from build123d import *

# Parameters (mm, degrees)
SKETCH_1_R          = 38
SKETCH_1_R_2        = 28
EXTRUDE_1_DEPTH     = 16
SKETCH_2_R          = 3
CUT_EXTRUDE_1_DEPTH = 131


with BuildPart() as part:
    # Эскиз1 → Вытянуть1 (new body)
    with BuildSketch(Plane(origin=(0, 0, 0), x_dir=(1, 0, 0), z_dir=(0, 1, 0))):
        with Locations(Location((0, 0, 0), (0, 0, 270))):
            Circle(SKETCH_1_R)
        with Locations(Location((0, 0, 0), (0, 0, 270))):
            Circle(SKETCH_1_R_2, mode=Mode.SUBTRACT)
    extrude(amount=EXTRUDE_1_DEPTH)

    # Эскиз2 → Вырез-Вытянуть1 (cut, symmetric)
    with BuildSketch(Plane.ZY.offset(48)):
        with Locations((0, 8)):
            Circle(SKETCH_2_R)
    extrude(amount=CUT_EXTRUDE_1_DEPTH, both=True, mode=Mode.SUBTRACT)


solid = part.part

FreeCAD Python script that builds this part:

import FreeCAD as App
import Part
import Sketcher
Q = App.Units.Quantity

doc = App.newDocument("Part")
body = doc.addObject("PartDesign::Body", "Body")

# Sketch on XZ plane
sketch1 = body.newObject("Sketcher::SketchObject", "Sketch")
sketch1.AttachmentSupport = (doc.getObject("XZ_Plane"), [""])
sketch1.MapMode = "FlatFace"
sketch1.addGeometry(Part.Circle(App.Vector(0, 0, 0), App.Vector(0, 0, 1), 38), False)
sketch1.addGeometry(Part.Circle(App.Vector(0, 0, 0), App.Vector(0, 0, 1), 28), False)
sketch1.addConstraint(Sketcher.Constraint("Coincident", 0, 3, -1, 1))
sketch1.addConstraint(Sketcher.Constraint("Coincident", 1, 3, -1, 1))
sketch1.addConstraint(Sketcher.Constraint("Diameter", 0, Q("76 mm")))
sketch1.addConstraint(Sketcher.Constraint("Diameter", 1, Q("56 mm")))
pad1 = body.newObject("PartDesign::Pad", "Pad")
pad1.Profile = sketch1
pad1.Length = 16
pad1.Reversed = True

# Sketch on YZ plane
sketch2 = body.newObject("Sketcher::SketchObject", "Sketch001")
sketch2.AttachmentSupport = (doc.getObject("YZ_Plane"), [""])
sketch2.MapMode = "FlatFace"
sketch2.AttachmentOffset = App.Placement(App.Vector(0, 0, -48), App.Rotation())
sketch2.addGeometry(Part.Circle(App.Vector(8, 0, 0), App.Vector(0, 0, 1), 3), False)
sketch2.addConstraint(Sketcher.Constraint("PointOnObject", 0, 3, -1))
sketch2.addConstraint(Sketcher.Constraint("Diameter", 0, Q("6 mm")))
sketch2.addConstraint(Sketcher.Constraint("DistanceX", -1, 1, 0, 3, Q("8 mm")))
pocket1 = body.newObject("PartDesign::Pocket", "Pocket")
pocket1.Profile = sketch2
pocket1.Length = 262
pocket1.Midplane = True

doc.recompute()
